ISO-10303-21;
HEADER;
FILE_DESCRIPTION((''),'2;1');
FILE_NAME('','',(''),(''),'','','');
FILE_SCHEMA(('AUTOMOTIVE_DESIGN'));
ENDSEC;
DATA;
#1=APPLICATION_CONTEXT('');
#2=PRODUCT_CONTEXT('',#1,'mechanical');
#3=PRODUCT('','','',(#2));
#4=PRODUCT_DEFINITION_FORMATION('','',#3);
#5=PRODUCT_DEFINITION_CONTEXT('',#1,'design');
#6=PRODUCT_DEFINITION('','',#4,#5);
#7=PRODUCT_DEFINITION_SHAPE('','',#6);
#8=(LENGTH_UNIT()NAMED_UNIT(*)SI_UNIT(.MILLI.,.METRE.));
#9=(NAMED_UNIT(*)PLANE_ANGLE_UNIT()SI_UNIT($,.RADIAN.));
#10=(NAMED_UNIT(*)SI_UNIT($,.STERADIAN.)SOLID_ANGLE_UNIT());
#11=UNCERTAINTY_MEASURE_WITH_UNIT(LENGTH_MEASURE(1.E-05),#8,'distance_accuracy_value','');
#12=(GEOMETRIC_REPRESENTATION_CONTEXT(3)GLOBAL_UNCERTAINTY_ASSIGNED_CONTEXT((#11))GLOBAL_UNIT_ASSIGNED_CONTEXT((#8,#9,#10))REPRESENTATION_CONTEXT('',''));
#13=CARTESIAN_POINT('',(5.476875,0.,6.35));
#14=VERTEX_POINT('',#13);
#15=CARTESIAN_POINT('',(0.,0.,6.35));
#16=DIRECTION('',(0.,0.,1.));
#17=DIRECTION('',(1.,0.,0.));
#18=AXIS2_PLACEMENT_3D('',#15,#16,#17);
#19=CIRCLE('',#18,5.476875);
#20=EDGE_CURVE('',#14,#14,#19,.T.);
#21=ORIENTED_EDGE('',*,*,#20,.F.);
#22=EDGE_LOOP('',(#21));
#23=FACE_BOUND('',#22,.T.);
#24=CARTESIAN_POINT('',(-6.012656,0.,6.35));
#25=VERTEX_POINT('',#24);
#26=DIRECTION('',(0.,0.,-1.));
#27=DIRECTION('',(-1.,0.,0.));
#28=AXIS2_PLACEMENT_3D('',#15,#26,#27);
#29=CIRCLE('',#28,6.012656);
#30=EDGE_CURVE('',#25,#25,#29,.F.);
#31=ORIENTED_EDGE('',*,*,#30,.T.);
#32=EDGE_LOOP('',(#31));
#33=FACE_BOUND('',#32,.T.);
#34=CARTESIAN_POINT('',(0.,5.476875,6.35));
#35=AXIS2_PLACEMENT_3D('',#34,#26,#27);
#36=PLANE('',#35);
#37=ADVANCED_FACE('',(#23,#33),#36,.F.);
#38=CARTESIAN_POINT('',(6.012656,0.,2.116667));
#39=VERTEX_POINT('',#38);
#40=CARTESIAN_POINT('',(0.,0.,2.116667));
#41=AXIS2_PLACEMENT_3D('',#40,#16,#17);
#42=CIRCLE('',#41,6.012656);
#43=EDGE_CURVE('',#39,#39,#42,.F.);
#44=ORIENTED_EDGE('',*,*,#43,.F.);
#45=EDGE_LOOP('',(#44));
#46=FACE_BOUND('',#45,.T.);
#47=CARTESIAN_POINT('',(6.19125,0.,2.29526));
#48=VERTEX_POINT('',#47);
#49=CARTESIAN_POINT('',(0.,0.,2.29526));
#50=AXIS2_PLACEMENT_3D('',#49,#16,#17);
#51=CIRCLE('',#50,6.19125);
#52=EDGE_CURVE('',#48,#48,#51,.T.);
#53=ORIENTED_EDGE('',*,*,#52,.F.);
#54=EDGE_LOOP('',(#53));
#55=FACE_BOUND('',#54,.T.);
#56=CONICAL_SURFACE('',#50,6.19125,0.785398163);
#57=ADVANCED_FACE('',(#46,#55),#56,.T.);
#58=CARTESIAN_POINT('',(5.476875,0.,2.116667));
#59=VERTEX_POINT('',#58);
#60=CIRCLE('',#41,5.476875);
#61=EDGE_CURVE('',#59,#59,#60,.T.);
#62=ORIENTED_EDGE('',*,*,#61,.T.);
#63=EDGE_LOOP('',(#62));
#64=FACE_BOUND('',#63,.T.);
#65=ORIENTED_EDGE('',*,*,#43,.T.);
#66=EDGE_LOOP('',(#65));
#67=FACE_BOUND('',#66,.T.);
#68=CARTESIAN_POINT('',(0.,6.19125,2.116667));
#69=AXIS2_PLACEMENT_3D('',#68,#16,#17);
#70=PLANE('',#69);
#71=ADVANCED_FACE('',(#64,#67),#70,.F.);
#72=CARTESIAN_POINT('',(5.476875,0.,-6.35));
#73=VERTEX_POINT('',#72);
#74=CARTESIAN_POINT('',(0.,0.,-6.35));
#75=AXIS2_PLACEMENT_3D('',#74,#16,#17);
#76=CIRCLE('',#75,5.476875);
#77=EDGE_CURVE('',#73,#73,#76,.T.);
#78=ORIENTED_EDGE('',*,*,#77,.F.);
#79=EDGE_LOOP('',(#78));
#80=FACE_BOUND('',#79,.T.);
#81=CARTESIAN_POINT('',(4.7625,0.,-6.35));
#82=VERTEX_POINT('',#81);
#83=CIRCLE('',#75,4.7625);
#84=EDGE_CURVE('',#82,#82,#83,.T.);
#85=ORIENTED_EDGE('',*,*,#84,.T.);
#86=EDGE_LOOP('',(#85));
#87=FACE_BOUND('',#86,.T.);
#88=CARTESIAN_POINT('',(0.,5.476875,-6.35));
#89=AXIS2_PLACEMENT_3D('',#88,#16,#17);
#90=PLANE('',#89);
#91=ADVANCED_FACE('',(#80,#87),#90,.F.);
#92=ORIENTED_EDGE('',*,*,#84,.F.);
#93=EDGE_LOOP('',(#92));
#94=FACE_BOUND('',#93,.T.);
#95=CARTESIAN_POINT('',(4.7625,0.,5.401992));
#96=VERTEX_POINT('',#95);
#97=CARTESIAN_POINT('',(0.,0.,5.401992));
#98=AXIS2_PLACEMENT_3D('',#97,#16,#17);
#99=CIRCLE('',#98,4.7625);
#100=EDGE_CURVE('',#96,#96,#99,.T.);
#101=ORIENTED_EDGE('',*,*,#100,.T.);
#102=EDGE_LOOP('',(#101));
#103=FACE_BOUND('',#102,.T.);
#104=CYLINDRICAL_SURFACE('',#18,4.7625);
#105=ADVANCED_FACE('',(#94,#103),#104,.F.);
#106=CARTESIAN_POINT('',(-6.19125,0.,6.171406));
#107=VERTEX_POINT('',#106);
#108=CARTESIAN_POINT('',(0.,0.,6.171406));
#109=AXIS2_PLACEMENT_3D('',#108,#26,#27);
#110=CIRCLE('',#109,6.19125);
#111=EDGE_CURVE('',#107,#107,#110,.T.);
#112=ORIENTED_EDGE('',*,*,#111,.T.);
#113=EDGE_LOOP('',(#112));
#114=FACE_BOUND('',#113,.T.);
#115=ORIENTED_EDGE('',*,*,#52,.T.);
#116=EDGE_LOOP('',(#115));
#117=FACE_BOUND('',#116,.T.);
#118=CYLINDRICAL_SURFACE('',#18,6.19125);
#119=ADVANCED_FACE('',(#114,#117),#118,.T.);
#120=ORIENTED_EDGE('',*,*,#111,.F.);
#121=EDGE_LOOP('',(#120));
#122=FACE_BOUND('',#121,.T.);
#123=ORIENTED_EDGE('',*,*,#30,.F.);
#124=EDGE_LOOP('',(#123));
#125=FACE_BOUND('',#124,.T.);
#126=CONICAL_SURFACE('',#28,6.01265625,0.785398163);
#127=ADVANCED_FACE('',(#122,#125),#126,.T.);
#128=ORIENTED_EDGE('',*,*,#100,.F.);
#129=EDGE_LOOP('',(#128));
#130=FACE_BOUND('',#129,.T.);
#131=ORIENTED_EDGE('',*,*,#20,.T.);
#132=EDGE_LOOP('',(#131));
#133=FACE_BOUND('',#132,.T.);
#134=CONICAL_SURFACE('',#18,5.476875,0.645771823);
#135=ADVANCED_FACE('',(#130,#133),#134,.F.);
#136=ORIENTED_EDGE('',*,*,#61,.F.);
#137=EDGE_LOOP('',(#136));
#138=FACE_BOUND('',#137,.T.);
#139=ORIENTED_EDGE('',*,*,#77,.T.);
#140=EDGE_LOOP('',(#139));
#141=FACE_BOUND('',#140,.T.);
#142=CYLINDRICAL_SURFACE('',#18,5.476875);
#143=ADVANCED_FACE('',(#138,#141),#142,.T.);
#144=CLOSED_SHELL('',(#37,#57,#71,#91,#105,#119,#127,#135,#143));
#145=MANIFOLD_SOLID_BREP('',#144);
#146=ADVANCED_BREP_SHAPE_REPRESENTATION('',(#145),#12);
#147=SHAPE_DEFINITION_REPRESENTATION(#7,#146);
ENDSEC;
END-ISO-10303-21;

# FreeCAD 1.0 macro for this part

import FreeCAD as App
import Part
import Sketcher
from FreeCAD import Vector
Q = App.Units.Quantity


def edges_at(feature, points):
    """Names of the edges that pass closest to the given points."""
    edges = feature.Shape.Edges
    near = lambda p: min(range(len(edges)), key=lambda i: edges[i].distToShape(Part.Vertex(*p))[0])
    return sorted({f"Edge{near(p) + 1}" for p in points})

doc = App.newDocument("Part")
body = doc.addObject("PartDesign::Body", "Body")

sketch1 = body.newObject("Sketcher::SketchObject", "Sketch")
sketch1.AttachmentSupport = (doc.getObject("YZ_Plane"), [""])
sketch1.MapMode = "FlatFace"
sketch1.addGeometry([
    Part.LineSegment(Vector(5.5, 6.3, 0), Vector(4.8, 5.4, 0)),
    Part.LineSegment(Vector(4.8, 5.4, 0), Vector(4.8, -6.3, 0)),
    Part.LineSegment(Vector(4.8, -6.3, 0), Vector(5.5, -6.3, 0)),
    Part.LineSegment(Vector(5.5, -6.3, 0), Vector(5.5, 2.1, 0)),
    Part.LineSegment(Vector(5.5, 2.1, 0), Vector(6.2, 2.1, 0)),
    Part.LineSegment(Vector(6.2, 2.1, 0), Vector(6.2, 6.3, 0)),
    Part.LineSegment(Vector(6.2, 6.3, 0), Vector(5.5, 6.3, 0)),
], False)
sketch1.addConstraint([
    Sketcher.Constraint("Coincident", 0, 2, 1, 1),
    Sketcher.Constraint("Coincident", 1, 2, 2, 1),
    Sketcher.Constraint("Coincident", 2, 2, 3, 1),
    Sketcher.Constraint("Coincident", 3, 2, 4, 1),
    Sketcher.Constraint("Coincident", 4, 2, 5, 1),
    Sketcher.Constraint("Coincident", 5, 2, 6, 1),
    Sketcher.Constraint("Coincident", 6, 2, 0, 1),
    Sketcher.Constraint("Vertical", 1),
    Sketcher.Constraint("Horizontal", 2),
    Sketcher.Constraint("Vertical", 3),
    Sketcher.Constraint("Horizontal", 4),
    Sketcher.Constraint("Vertical", 5),
    Sketcher.Constraint("Horizontal", 6),
    Sketcher.Constraint("Symmetric", 2, 2, 6, 2, -1),
    Sketcher.Constraint("Equal", 2, 4),
    Sketcher.Constraint("Angle", 0, Q("-127 deg")),
    Sketcher.Constraint("DistanceY", 2, 2, 5, 2, 12.7),
    Sketcher.Constraint("DistanceX", -1, 1, 0, 2, 4.7625),
    Sketcher.Constraint("DistanceX", 2, 1, 2, 2, 0.714375),
    Sketcher.Constraint("DistanceY", 3, 1, 3, 2, 8.466667),
])
revolution = body.newObject("PartDesign::Revolution", "Revolution")
revolution.Profile = sketch1
revolution.ReferenceAxis = (sketch1, ["V_Axis"])
revolution.Angle = 360
doc.recompute()

chamfer = body.newObject("PartDesign::Chamfer", "Chamfer")
chamfer.Base = (revolution, edges_at(revolution, [(-6.191, 0, 2.117), (-6.191, 0, 6.35)]))
chamfer.Size = 0.178594

doc.recompute()
